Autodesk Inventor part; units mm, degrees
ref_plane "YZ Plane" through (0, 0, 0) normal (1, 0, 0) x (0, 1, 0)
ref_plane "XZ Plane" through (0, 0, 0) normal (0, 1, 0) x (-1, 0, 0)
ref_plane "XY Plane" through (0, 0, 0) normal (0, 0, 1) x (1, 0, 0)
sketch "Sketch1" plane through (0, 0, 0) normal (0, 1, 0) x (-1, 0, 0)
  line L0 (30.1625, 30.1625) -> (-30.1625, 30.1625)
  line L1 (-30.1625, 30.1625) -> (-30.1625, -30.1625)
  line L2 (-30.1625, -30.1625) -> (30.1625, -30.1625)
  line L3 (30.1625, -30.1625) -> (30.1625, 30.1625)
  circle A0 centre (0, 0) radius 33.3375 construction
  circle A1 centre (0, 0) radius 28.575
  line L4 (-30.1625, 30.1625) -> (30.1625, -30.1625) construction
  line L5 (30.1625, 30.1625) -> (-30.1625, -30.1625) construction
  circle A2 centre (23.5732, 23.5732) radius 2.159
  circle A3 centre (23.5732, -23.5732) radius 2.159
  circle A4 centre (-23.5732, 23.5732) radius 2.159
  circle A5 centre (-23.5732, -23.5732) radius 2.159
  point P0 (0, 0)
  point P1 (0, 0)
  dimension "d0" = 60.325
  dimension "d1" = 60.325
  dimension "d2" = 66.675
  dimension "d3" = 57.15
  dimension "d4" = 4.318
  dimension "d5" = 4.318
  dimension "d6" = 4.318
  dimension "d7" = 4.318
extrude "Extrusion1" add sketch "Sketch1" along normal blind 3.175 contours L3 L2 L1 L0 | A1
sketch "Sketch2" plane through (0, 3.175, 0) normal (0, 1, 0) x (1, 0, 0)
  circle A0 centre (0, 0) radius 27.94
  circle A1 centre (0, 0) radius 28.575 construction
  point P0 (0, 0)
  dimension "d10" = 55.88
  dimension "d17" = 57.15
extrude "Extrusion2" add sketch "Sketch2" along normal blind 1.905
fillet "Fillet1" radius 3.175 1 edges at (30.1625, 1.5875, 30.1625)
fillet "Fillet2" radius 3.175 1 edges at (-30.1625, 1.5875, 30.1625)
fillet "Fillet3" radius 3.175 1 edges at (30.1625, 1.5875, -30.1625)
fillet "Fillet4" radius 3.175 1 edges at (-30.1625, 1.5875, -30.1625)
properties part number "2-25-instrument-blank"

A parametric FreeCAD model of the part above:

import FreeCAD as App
import Part
import Sketcher

V = App.Vector
Q = App.Units.Quantity


def edges_at(feature, points):
    """Names of the edges that pass closest to the given points."""
    edges = feature.Shape.Edges
    near = lambda p: min(range(len(edges)), key=lambda i: edges[i].distToShape(Part.Vertex(*p))[0])
    return sorted({f"Edge{near(p) + 1}" for p in points})

doc = App.newDocument("Part")
params = doc.addObject("Spreadsheet::Sheet", "Params")
for row, (alias, value) in enumerate([
    ("sketch1_diameter", "0.17 in"),
    ("sketch1_width", "2.375 in"),
    ("pad1_length", "0.125 in"),
    ("sketch2_diameter", "2.2 in"),
    ("pad2_length", "0.075 in"),
    ("fillet_radius", "0.125 in"),
    ("fillet2_radius", "0.125 in"),
    ("fillet3_radius", "0.125 in"),
    ("fillet4_radius", "0.125 in"),
], start=1):
    params.set(f"A{row}", alias)
    params.set(f"B{row}", "=" + value)
    params.setAlias(f"B{row}", alias)

body = doc.addObject("PartDesign::Body", "Body")

sketch1 = body.newObject("Sketcher::SketchObject", "Sketch")
sketch1.AttachmentSupport = (doc.getObject("XZ_Plane"), [""])
sketch1.MapMode = "FlatFace"
sketch1.addGeometry([
    Part.LineSegment(V(-30.2, -30.2, 0), V(-30.2, 30.2, 0)),
    Part.LineSegment(V(-30.2, 30.2, 0), V(30.2, 30.2, 0)),
    Part.LineSegment(V(30.2, 30.2, 0), V(30.2, -30.2, 0)),
    Part.LineSegment(V(30.2, -30.2, 0), V(-30.2, -30.2, 0)),
    Part.Circle(V(23.6, -23.6, 0), V(0, 0, 1), 2.2),
    Part.Circle(V(-23.6, -23.6, 0), V(0, 0, 1), 2.2),
    Part.Circle(V(23.6, 23.6, 0), V(0, 0, 1), 2.2),
    Part.Circle(V(-23.6, 23.6, 0), V(0, 0, 1), 2.2),
], False)
sketch1.addConstraint([
    Sketcher.Constraint("Coincident", 0, 2, 1, 1),
    Sketcher.Constraint("Coincident", 1, 2, 2, 1),
    Sketcher.Constraint("Coincident", 2, 2, 3, 1),
    Sketcher.Constraint("Coincident", 3, 2, 0, 1),
    Sketcher.Constraint("Vertical", 0),
    Sketcher.Constraint("Horizontal", 1),
    Sketcher.Constraint("Vertical", 2),
    Sketcher.Constraint("Horizontal", 3),
    Sketcher.Constraint("Equal", 4, 5),
    Sketcher.Constraint("Equal", 5, 6),
    Sketcher.Constraint("Equal", 6, 7),
    Sketcher.Constraint("Symmetric", 5, 3, 6, 3, -1, 1),
    Sketcher.Constraint("Symmetric", 4, 3, 7, 3, -1, 1),
    Sketcher.Constraint("Symmetric", 0, 2, 2, 2, -1, 1),
    Sketcher.Constraint("Symmetric", 4, 3, 5, 3, -2),
    Sketcher.Constraint("Equal", 3, 0),
    Sketcher.Constraint("Diameter", 4, Q("0.17 in")),
    Sketcher.Constraint("DistanceX", 1, 1, 1, 2, Q("2.375 in")),
    Sketcher.Constraint("DistanceX", -1, 1, 4, 3, Q("23.5732 mm")),
    Sketcher.Constraint("DistanceY", 4, 3, -1, 1, Q("23.5732 mm")),
])
sketch1.setExpression("Constraints[16]", "Params.sketch1_diameter")
sketch1.setExpression("Constraints[17]", "Params.sketch1_width")
pad1 = body.newObject("PartDesign::Pad", "Pad")
pad1.Profile = sketch1
pad1.setExpression("Length", "Params.pad1_length")
pad1.Reversed = True

sketch2 = body.newObject("Sketcher::SketchObject", "Sketch001")
sketch2.AttachmentSupport = (doc.getObject("XZ_Plane"), [""])
sketch2.MapMode = "FlatFace"
sketch2.AttachmentOffset = App.Placement(V(0, 0, -0.125 * 25.4), App.Rotation())
sketch2.addGeometry(Part.Circle(V(0, 0, 0), V(0, 0, 1), 28), False)
sketch2.addConstraint([
    Sketcher.Constraint("Coincident", 0, 3, -1, 1),
    Sketcher.Constraint("Diameter", 0, Q("2.2 in")),
])
sketch2.setExpression("Constraints[1]", "Params.sketch2_diameter")
pad2 = body.newObject("PartDesign::Pad", "Pad001")
pad2.Profile = sketch2
pad2.setExpression("Length", "Params.pad2_length")
pad2.Reversed = True
doc.recompute()

fillet = body.newObject("PartDesign::Fillet", "Fillet")
fillet.Base = (pad2, edges_at(pad2, [(30.163, 1.587, 30.163)]))
fillet.setExpression("Radius", "Params.fillet_radius")
doc.recompute()

fillet2 = body.newObject("PartDesign::Fillet", "Fillet001")
fillet2.Base = (fillet, edges_at(fillet, [(-30.163, 1.587, 30.163)]))
fillet2.setExpression("Radius", "Params.fillet2_radius")
doc.recompute()

fillet3 = body.newObject("PartDesign::Fillet", "Fillet002")
fillet3.Base = (fillet2, edges_at(fillet2, [(30.163, 1.587, -30.163)]))
fillet3.setExpression("Radius", "Params.fillet3_radius")
doc.recompute()

fillet4 = body.newObject("PartDesign::Fillet", "Fillet003")
fillet4.Base = (fillet3, edges_at(fillet3, [(-30.163, 1.587, -30.163)]))
fillet4.setExpression("Radius", "Params.fillet4_radius")

doc.recompute()
